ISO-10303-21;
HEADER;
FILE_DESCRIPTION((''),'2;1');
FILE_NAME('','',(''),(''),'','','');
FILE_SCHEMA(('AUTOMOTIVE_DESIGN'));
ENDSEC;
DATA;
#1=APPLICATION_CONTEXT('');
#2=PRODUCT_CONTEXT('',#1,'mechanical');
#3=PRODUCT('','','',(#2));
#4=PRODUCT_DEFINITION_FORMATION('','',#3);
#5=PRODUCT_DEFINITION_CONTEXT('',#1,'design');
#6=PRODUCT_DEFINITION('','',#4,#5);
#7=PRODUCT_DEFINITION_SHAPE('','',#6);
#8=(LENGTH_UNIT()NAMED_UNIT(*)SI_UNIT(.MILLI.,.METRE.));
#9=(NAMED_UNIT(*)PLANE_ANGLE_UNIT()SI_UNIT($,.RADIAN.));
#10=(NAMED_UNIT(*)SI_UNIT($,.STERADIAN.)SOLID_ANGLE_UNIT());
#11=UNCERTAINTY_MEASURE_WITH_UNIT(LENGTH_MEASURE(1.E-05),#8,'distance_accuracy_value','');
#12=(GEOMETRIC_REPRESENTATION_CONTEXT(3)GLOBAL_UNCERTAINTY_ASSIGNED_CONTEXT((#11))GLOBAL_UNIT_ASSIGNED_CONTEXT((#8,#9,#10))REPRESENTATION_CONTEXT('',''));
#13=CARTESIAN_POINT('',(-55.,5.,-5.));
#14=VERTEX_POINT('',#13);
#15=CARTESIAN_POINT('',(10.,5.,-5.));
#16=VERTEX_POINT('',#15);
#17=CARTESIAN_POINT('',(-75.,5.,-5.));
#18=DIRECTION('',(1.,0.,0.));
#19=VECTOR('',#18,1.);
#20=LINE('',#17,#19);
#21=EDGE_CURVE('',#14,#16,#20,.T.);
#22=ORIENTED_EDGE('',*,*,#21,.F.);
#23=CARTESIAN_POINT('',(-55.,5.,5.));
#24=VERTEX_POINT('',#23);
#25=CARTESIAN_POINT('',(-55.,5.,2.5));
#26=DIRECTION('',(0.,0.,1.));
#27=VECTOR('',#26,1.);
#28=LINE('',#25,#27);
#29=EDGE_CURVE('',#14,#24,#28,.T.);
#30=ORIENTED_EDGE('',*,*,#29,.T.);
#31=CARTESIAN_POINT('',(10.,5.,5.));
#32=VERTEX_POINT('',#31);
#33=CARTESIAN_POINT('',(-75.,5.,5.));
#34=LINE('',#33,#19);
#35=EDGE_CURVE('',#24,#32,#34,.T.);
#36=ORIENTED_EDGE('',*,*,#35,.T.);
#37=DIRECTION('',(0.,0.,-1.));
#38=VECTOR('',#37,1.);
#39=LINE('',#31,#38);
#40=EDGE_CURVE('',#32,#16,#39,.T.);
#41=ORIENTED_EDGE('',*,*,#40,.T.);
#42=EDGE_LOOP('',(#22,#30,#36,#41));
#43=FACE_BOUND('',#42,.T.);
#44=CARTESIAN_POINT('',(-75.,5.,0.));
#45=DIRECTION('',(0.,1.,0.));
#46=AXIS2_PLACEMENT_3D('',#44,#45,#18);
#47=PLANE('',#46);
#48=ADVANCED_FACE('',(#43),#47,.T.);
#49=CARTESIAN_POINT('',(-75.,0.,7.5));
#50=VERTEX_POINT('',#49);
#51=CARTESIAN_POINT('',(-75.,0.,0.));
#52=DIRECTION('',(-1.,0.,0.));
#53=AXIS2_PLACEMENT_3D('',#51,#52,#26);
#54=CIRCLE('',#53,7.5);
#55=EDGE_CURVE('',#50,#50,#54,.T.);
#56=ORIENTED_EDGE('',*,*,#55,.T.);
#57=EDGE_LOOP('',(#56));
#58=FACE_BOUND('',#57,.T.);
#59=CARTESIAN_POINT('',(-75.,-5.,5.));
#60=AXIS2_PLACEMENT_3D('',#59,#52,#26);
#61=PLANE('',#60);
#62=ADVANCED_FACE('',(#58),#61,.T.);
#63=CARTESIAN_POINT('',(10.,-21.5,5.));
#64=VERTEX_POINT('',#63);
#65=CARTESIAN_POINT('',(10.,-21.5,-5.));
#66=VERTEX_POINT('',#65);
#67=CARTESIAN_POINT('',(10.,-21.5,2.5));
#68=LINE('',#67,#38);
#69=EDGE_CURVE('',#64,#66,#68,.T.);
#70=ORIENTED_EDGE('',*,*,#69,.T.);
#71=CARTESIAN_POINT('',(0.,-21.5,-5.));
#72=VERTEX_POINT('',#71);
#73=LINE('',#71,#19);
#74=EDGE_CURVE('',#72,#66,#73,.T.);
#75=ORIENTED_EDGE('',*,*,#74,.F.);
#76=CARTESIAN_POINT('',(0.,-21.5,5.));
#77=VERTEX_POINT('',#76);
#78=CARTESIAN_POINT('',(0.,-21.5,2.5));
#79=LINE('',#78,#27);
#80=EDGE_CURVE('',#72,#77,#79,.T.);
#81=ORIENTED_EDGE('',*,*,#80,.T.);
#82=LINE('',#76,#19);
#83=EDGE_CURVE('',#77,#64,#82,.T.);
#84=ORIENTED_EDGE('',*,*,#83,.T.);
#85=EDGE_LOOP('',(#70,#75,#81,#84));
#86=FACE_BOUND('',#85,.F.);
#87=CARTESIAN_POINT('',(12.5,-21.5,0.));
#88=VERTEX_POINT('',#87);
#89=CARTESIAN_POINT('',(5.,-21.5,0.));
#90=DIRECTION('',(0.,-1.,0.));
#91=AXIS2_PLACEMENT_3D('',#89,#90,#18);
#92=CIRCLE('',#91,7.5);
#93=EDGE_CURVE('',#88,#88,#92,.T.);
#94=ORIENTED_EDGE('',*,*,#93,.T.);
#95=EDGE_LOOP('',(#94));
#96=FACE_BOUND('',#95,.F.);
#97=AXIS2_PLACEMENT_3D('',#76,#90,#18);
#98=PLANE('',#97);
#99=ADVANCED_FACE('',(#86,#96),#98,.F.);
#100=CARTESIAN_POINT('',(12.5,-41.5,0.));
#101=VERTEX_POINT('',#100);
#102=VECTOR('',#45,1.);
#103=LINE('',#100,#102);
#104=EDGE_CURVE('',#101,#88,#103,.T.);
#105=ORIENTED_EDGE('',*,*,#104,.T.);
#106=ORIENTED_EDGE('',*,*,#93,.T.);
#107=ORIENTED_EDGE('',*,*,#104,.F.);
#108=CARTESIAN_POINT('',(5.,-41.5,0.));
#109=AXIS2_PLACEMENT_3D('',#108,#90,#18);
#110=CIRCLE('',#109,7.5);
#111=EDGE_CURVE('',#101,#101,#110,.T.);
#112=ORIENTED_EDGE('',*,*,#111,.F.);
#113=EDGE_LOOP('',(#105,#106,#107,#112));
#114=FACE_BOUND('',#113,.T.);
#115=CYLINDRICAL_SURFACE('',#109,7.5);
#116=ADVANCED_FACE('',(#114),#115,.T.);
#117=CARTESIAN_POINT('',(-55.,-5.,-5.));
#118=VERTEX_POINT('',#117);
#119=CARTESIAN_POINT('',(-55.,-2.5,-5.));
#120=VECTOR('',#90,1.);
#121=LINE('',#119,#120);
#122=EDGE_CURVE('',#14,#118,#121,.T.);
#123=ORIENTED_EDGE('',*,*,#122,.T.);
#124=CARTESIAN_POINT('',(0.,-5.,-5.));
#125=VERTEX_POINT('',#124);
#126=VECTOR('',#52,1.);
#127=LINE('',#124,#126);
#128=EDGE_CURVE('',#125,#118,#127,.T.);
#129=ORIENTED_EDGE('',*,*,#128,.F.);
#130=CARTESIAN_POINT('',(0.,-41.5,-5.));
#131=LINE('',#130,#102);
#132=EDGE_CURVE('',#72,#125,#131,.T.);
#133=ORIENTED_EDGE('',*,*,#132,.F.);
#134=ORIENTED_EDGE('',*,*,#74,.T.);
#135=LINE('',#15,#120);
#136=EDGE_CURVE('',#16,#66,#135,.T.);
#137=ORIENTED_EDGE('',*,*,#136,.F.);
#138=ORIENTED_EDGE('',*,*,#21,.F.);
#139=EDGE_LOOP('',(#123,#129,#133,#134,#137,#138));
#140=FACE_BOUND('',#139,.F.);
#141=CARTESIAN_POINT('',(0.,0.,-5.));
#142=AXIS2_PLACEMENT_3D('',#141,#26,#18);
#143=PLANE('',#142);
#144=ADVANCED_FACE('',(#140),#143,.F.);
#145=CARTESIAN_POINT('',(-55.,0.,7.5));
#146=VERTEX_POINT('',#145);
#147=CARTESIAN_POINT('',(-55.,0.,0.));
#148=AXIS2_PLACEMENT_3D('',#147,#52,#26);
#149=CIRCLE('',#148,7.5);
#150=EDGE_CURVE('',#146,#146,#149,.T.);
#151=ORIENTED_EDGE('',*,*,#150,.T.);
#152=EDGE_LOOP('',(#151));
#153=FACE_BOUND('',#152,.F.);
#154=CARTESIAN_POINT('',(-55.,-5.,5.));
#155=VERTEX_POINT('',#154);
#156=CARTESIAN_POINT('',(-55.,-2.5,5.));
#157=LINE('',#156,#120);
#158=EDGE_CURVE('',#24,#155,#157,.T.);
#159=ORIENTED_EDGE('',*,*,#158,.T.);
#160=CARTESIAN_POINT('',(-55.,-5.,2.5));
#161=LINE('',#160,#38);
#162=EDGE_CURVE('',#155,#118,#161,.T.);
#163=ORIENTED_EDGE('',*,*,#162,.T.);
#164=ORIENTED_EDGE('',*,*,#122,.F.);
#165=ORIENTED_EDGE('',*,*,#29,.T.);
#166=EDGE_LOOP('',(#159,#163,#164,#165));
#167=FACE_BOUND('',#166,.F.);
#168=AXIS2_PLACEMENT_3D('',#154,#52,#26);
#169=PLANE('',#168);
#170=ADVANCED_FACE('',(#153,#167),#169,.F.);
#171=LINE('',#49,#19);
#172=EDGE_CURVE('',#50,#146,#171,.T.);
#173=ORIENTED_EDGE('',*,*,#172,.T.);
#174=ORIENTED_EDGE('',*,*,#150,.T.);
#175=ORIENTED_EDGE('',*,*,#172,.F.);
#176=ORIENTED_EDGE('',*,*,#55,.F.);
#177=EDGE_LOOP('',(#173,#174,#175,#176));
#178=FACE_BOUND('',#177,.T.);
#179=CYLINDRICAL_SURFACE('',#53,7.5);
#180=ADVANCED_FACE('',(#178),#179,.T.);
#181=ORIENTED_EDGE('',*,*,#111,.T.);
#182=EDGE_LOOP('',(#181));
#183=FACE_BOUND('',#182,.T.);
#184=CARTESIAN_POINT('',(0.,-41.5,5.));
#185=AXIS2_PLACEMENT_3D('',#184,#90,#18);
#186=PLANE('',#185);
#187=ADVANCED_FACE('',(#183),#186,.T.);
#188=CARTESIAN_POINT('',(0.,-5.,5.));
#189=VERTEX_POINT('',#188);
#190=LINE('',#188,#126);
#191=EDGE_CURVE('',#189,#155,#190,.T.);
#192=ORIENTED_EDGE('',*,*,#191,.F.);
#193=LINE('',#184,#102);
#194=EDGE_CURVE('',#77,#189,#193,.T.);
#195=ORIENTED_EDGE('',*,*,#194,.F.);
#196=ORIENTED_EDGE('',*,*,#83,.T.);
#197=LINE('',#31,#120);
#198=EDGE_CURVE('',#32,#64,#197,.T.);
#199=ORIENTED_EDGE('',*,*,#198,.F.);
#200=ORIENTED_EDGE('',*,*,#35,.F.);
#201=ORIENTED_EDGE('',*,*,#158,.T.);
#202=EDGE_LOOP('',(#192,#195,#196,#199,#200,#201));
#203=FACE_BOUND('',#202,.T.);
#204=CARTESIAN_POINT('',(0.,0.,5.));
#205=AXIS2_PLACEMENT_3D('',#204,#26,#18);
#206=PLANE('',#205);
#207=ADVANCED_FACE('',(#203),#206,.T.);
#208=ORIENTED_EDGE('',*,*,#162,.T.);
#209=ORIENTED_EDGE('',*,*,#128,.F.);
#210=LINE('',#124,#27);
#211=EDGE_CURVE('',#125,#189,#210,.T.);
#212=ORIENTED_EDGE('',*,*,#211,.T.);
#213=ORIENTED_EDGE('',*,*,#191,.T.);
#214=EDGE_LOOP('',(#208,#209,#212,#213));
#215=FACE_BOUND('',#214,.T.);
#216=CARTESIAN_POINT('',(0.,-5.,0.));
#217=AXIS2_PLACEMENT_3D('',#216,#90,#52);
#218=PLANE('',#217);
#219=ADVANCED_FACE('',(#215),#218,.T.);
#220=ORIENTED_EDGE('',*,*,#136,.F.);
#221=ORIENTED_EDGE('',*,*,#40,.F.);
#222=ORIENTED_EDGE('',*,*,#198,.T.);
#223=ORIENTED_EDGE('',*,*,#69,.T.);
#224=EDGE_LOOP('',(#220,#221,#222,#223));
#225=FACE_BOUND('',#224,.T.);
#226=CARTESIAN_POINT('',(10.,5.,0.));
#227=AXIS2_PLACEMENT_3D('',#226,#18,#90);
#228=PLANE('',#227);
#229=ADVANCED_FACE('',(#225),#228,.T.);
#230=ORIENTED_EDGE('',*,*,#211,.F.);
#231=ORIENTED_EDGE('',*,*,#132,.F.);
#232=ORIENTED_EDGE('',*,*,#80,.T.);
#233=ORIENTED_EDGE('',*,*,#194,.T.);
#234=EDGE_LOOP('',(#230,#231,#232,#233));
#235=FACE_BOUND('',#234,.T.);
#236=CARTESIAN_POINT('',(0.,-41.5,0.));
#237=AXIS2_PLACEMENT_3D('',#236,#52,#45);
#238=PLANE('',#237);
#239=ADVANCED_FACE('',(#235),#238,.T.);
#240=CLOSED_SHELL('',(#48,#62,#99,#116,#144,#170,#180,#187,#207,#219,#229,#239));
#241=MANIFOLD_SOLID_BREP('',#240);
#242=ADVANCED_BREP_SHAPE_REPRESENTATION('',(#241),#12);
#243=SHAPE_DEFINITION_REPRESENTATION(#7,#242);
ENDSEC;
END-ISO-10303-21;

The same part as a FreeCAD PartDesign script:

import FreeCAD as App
import Part
import Sketcher

doc = App.newDocument("Part")
body = doc.addObject("PartDesign::Body", "Body")

sketch1 = body.newObject("Sketcher::SketchObject", "Sketch")
sketch1.AttachmentSupport = (doc.getObject("XY_Plane"), [""])
sketch1.MapMode = "FlatFace"
sketch1.addGeometry(Part.LineSegment(App.Vector(-75, 5, 0), App.Vector(-75, -5, 0)), False)
sketch1.addGeometry(Part.LineSegment(App.Vector(-75, -5, 0), App.Vector(0, -5, 0)), False)
sketch1.addGeometry(Part.LineSegment(App.Vector(0, -5, 0), App.Vector(0, -41.5, 0)), False)
sketch1.addGeometry(Part.LineSegment(App.Vector(0, -41.5, 0), App.Vector(10, -41.5, 0)), False)
sketch1.addGeometry(Part.LineSegment(App.Vector(10, -41.5, 0), App.Vector(10, 5, 0)), False)
sketch1.addGeometry(Part.LineSegment(App.Vector(10, 5, 0), App.Vector(-75, 5, 0)), False)
sketch1.addConstraint(Sketcher.Constraint("Coincident", 0, 2, 1, 1))
sketch1.addConstraint(Sketcher.Constraint("Coincident", 1, 2, 2, 1))
sketch1.addConstraint(Sketcher.Constraint("Coincident", 2, 2, 3, 1))
sketch1.addConstraint(Sketcher.Constraint("Coincident", 3, 2, 4, 1))
sketch1.addConstraint(Sketcher.Constraint("Coincident", 4, 2, 5, 1))
sketch1.addConstraint(Sketcher.Constraint("Coincident", 5, 2, 0, 1))
sketch1.addConstraint(Sketcher.Constraint("Vertical", 0))
sketch1.addConstraint(Sketcher.Constraint("Horizontal", 1))
sketch1.addConstraint(Sketcher.Constraint("Vertical", 2))
sketch1.addConstraint(Sketcher.Constraint("Horizontal", 3))
sketch1.addConstraint(Sketcher.Constraint("Vertical", 4))
sketch1.addConstraint(Sketcher.Constraint("Horizontal", 5))
sketch1.addConstraint(Sketcher.Constraint("PointOnObject", 1, 2, -2))
sketch1.addConstraint(Sketcher.Constraint("Equal", 3, 0))
sketch1.addConstraint(Sketcher.Constraint("DistanceX", 3, 1, 3, 2, 10.0))
sketch1.addConstraint(Sketcher.Constraint("DistanceX", 5, 2, 5, 1, 85.0))
sketch1.addConstraint(Sketcher.Constraint("DistanceY", 4, 1, 4, 2, 46.5))
sketch1.addConstraint(Sketcher.Constraint("DistanceY", 0, 2, -1, 1, 5.0))
pad1 = body.newObject("PartDesign::Pad", "Pad")
pad1.Profile = sketch1
pad1.Type = "TwoLengths"
pad1.Length = 5
pad1.Length2 = 5

sketch2 = body.newObject("Sketcher::SketchObject", "Sketch001")
sketch2.AttachmentSupport = (doc.getObject("XZ_Plane"), [""])
sketch2.MapMode = "FlatFace"
sketch2.AttachmentOffset = App.Placement(App.Vector(0, 0, 41.5), App.Rotation())
sketch2.addGeometry(Part.Circle(App.Vector(5, 0, 0), App.Vector(0, 0, 1), 7.5), False)
sketch2.addConstraint(Sketcher.Constraint("PointOnObject", 0, 3, -1))
sketch2.addConstraint(Sketcher.Constraint("Diameter", 0, 15.0))
sketch2.addConstraint(Sketcher.Constraint("DistanceX", -1, 1, 0, 3, 5.0))
pad2 = body.newObject("PartDesign::Pad", "Pad001")
pad2.Profile = sketch2
pad2.Length = 20
pad2.Reversed = True

sketch3 = body.newObject("Sketcher::SketchObject", "Sketch002")
sketch3.AttachmentSupport = (doc.getObject("YZ_Plane"), [""])
sketch3.MapMode = "FlatFace"
sketch3.AttachmentOffset = App.Placement(App.Vector(0, 0, -75), App.Rotation())
sketch3.addGeometry(Part.Circle(App.Vector(0, 0, 0), App.Vector(0, 0, 1), 7.5), False)
sketch3.addConstraint(Sketcher.Constraint("Coincident", 0, 3, -1, 1))
sketch3.addConstraint(Sketcher.Constraint("Diameter", 0, 15.0))
pad3 = body.newObject("PartDesign::Pad", "Pad002")
pad3.Profile = sketch3
pad3.Length = 20

doc.recompute()
